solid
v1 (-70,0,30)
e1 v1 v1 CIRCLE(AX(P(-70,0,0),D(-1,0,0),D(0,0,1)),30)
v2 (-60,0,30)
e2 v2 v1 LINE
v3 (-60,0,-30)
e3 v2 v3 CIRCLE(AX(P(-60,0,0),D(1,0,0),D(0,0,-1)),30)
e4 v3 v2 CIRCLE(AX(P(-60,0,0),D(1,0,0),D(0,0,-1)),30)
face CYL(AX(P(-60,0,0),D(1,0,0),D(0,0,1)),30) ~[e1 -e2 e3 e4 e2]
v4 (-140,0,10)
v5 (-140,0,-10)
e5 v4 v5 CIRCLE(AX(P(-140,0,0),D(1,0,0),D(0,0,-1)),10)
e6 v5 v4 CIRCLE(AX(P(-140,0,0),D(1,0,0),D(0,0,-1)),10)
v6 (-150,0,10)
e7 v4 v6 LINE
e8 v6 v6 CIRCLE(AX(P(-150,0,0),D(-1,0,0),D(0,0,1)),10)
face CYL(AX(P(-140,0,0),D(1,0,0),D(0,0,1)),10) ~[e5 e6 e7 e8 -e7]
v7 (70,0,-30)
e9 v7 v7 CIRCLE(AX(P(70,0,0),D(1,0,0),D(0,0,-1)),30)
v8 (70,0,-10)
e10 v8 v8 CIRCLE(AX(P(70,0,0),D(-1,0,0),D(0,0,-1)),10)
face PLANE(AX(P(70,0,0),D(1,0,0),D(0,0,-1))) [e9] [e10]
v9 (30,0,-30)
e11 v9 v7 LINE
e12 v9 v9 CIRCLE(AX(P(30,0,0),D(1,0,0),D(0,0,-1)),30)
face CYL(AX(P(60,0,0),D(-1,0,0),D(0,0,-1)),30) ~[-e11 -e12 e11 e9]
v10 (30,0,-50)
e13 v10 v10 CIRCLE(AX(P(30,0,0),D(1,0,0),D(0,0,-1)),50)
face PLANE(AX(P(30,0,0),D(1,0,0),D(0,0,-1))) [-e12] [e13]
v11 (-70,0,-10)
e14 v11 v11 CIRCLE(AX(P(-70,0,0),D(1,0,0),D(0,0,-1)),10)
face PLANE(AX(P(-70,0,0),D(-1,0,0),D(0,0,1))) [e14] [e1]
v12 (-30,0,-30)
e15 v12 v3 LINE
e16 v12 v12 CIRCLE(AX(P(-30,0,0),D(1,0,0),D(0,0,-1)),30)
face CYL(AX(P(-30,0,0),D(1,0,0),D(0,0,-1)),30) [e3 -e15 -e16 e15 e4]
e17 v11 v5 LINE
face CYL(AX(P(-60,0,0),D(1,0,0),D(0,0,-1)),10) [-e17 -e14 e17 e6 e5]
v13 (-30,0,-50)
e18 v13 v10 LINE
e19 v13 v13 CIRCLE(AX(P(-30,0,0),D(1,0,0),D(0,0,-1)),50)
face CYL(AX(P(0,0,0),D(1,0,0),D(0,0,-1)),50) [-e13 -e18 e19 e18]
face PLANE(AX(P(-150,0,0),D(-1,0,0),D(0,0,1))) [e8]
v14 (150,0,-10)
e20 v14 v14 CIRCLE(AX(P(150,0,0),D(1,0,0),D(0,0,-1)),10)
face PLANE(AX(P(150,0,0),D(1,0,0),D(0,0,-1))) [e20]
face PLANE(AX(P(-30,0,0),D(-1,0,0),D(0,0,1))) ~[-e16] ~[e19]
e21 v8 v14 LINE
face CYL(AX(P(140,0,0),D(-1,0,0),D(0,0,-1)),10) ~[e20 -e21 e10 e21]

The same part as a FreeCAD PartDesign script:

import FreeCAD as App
import Part
import Sketcher
Q = App.Units.Quantity

doc = App.newDocument("Part")
body = doc.addObject("PartDesign::Body", "Body")

# Sketch on YZ plane
sketch1 = doc.addObject("Sketcher::SketchObject", "Sketch")
body.addObject(sketch1)
sketch1.AttachmentSupport = (doc.YZ_Plane, [""])
sketch1.MapMode = "FlatFace"
sketch1.addGeometry(Part.Circle(App.Vector(0, 0, 0), App.Vector(0, 0, 1), 50), False)
sketch1.addConstraint([
    Sketcher.Constraint("Coincident", 0, 3, -1, 1),
    Sketcher.Constraint("Diameter", 0, Q("100 mm")),
])
pad1 = doc.addObject("PartDesign::Pad", "Pad")
body.addObject(pad1)
pad1.Profile = sketch1
pad1.Length = 30

# Sketch on YZ plane
sketch2 = doc.addObject("Sketcher::SketchObject", "Sketch001")
body.addObject(sketch2)
sketch2.AttachmentSupport = (doc.YZ_Plane, [""])
sketch2.MapMode = "FlatFace"
sketch2.AttachmentOffset = App.Placement(App.Vector(0, 0, 30), App.Rotation())
sketch2.addGeometry(Part.Circle(App.Vector(0, 0, 0), App.Vector(0, 0, 1), 30), False)
sketch2.addConstraint([
    Sketcher.Constraint("Coincident", 0, 3, -1, 1),
    Sketcher.Constraint("Diameter", 0, Q("60 mm")),
])
pad2 = doc.addObject("PartDesign::Pad", "Pad001")
body.addObject(pad2)
pad2.Profile = sketch2
pad2.Length = 30

# Sketch on YZ plane
sketch3 = doc.addObject("Sketcher::SketchObject", "Sketch002")
body.addObject(sketch3)
sketch3.AttachmentSupport = (doc.YZ_Plane, [""])
sketch3.MapMode = "FlatFace"
sketch3.AttachmentOffset = App.Placement(App.Vector(0, 0, 60), App.Rotation())
sketch3.addGeometry(Part.Circle(App.Vector(0, 0, 0), App.Vector(0, 0, 1), 10), False)
sketch3.addConstraint([
    Sketcher.Constraint("Coincident", 0, 3, -1, 1),
    Sketcher.Constraint("Diameter", 0, Q("20 mm")),
])
pad3 = doc.addObject("PartDesign::Pad", "Pad002")
body.addObject(pad3)
pad3.Profile = sketch3
pad3.Length = 80
doc.recompute()

mirrored = doc.addObject("PartDesign::Mirrored", "Mirrored")
body.addObject(mirrored)
mirrored.Originals = [pad1, pad2, pad3]
mirrored.MirrorPlane = (doc.YZ_Plane, [""])
body.Tip = mirrored

# Sketch on YZ plane
sketch4 = doc.addObject("Sketcher::SketchObject", "Sketch003")
body.addObject(sketch4)
sketch4.AttachmentSupport = (doc.YZ_Plane, [""])
sketch4.MapMode = "FlatFace"
sketch4.AttachmentOffset = App.Placement(App.Vector(0, 0, -60), App.Rotation())
sketch4.addGeometry(Part.Circle(App.Vector(0, 0, 0), App.Vector(0, 0, 1), 30), False)
sketch4.addConstraint([
    Sketcher.Constraint("Coincident", 0, 3, -1, 1),
    Sketcher.Constraint("Diameter", 0, Q("60 mm")),
])
pad4 = doc.addObject("PartDesign::Pad", "Pad003")
body.addObject(pad4)
pad4.Profile = sketch4
pad4.Length = 10
pad4.Reversed = True

# Sketch on YZ plane
sketch5 = doc.addObject("Sketcher::SketchObject", "Sketch004")
body.addObject(sketch5)
sketch5.AttachmentSupport = (doc.YZ_Plane, [""])
sketch5.MapMode = "FlatFace"
sketch5.AttachmentOffset = App.Placement(App.Vector(0, 0, -140), App.Rotation())
sketch5.addGeometry(Part.Circle(App.Vector(0, 0, 0), App.Vector(0, 0, 1), 10), False)
sketch5.addConstraint([
    Sketcher.Constraint("Coincident", 0, 3, -1, 1),
    Sketcher.Constraint("Diameter", 0, Q("20 mm")),
])
pad5 = doc.addObject("PartDesign::Pad", "Pad004")
body.addObject(pad5)
pad5.Profile = sketch5
pad5.Length = 10
pad5.Reversed = True

# Sketch on YZ plane
sketch6 = doc.addObject("Sketcher::SketchObject", "Sketch005")
body.addObject(sketch6)
sketch6.AttachmentSupport = (doc.YZ_Plane, [""])
sketch6.MapMode = "FlatFace"
sketch6.AttachmentOffset = App.Placement(App.Vector(0, 0, 60), App.Rotation())
sketch6.addGeometry(Part.Circle(App.Vector(0, 0, 0), App.Vector(0, 0, 1), 30), False)
sketch6.addConstraint([
    Sketcher.Constraint("Coincident", 0, 3, -1, 1),
    Sketcher.Constraint("Diameter", 0, Q("60 mm")),
])
pad6 = doc.addObject("PartDesign::Pad", "Pad005")
body.addObject(pad6)
pad6.Profile = sketch6
pad6.Length = 10

# Sketch on YZ plane
sketch7 = doc.addObject("Sketcher::SketchObject", "Sketch006")
body.addObject(sketch7)
sketch7.AttachmentSupport = (doc.YZ_Plane, [""])
sketch7.MapMode = "FlatFace"
sketch7.AttachmentOffset = App.Placement(App.Vector(0, 0, 140), App.Rotation())
sketch7.addGeometry(Part.Circle(App.Vector(0, 0, 0), App.Vector(0, 0, 1), 10), False)
sketch7.addConstraint([
    Sketcher.Constraint("Coincident", 0, 3, -1, 1),
    Sketcher.Constraint("Diameter", 0, Q("20 mm")),
])
pad7 = doc.addObject("PartDesign::Pad", "Pad006")
body.addObject(pad7)
pad7.Profile = sketch7
pad7.Length = 10

doc.recompute()
